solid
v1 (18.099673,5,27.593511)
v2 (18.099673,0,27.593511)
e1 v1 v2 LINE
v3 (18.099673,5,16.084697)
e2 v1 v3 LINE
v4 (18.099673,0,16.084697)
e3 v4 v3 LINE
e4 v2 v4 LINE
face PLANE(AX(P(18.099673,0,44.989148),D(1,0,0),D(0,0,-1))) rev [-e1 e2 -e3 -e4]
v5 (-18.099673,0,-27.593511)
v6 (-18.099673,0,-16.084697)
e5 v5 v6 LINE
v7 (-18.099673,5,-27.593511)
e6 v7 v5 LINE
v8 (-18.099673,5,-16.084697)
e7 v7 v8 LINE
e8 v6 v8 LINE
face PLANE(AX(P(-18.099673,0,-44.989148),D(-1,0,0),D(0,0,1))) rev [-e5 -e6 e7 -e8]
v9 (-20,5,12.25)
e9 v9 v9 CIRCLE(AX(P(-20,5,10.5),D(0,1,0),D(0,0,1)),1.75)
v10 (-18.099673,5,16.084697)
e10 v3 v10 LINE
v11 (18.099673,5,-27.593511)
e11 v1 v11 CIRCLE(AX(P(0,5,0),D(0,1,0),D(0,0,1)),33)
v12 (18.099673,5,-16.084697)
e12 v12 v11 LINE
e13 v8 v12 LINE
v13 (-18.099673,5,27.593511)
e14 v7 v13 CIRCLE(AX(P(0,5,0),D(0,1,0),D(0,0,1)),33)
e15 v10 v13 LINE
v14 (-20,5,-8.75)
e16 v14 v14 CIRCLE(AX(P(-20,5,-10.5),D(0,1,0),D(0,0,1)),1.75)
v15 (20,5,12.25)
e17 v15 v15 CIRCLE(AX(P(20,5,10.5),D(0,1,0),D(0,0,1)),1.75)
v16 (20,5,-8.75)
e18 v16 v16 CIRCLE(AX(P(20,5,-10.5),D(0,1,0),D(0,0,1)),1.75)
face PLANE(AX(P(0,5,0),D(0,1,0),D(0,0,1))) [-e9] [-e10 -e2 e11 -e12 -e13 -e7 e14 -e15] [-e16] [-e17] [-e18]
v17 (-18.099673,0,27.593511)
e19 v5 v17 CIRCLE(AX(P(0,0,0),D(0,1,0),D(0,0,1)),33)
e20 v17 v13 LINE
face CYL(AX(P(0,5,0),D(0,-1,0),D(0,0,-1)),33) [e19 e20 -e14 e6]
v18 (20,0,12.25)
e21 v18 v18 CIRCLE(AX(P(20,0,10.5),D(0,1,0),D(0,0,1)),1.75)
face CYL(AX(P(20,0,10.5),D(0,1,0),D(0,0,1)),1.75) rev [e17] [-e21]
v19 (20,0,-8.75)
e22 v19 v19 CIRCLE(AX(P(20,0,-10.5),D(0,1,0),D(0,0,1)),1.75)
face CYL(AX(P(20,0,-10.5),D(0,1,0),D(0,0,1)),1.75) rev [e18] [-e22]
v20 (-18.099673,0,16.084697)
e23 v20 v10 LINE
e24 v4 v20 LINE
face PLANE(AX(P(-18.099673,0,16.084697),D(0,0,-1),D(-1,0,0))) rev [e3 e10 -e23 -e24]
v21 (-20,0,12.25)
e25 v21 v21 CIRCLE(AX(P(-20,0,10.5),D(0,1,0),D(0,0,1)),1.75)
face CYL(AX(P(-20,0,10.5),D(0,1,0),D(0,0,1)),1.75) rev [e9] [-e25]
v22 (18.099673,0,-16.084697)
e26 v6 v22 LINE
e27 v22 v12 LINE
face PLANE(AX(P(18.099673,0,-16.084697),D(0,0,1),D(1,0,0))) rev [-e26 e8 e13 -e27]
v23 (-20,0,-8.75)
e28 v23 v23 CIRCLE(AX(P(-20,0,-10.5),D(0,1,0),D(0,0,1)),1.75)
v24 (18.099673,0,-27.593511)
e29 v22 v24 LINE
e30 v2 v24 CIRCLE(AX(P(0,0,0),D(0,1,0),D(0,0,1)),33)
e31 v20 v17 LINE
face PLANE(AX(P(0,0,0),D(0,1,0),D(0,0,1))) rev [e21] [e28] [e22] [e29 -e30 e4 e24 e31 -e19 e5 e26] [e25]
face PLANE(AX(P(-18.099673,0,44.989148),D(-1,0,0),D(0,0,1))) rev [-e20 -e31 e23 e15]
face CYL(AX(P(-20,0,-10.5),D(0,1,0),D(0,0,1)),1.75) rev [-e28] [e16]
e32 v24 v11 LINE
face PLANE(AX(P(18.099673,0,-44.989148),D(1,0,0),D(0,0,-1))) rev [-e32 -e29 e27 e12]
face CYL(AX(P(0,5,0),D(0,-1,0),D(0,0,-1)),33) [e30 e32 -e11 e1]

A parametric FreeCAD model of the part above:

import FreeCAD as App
import Part
import Sketcher
from FreeCAD import Vector

doc = App.newDocument("Part")
body = doc.addObject("PartDesign::Body", "Body")

# Sketch on XZ plane
sketch1 = body.newObject("Sketcher::SketchObject", "Sketch")
sketch1.AttachmentSupport = (doc.getObject("XZ_Plane"), [""])
sketch1.MapMode = "FlatFace"
sketch1.addGeometry(Part.Circle(Vector(0, 0, 0), Vector(0, 0, 1), 33), False)
sketch1.addConstraint([
    Sketcher.Constraint("Coincident", 0, 3, -1, 1),
    Sketcher.Constraint("Diameter", 0, 66.0),
])
pad1 = body.newObject("PartDesign::Pad", "Pad")
pad1.Profile = sketch1
pad1.Length = 5
pad1.Reversed = True

# Sketch on XZ plane
sketch2 = body.newObject("Sketcher::SketchObject", "Sketch001")
sketch2.AttachmentSupport = (doc.getObject("XZ_Plane"), [""])
sketch2.MapMode = "FlatFace"
sketch2.AttachmentOffset = App.Placement(Vector(0, 0, -5), App.Rotation())
sketch2.addGeometry([
    Part.LineSegment(Vector(-18, 16, 0), Vector(-18, 45, 0)),  # 0
    Part.LineSegment(Vector(-18, 45, 0), Vector(18, 45, 0)),  # 1
    Part.LineSegment(Vector(18, 45, 0), Vector(18, 16, 0)),  # 2
    Part.LineSegment(Vector(18, 16, 0), Vector(-18, 16, 0)),  # 3
    Part.LineSegment(Vector(-18, -45, 0), Vector(-18, -16, 0)),  # 4
    Part.LineSegment(Vector(-18, -16, 0), Vector(18, -16, 0)),  # 5
    Part.LineSegment(Vector(18, -16, 0), Vector(18, -45, 0)),  # 6
    Part.LineSegment(Vector(18, -45, 0), Vector(-18, -45, 0)),  # 7
], False)
sketch2.addConstraint([
    Sketcher.Constraint("Coincident", 0, 2, 1, 1),
    Sketcher.Constraint("Coincident", 1, 2, 2, 1),
    Sketcher.Constraint("Coincident", 2, 2, 3, 1),
    Sketcher.Constraint("Coincident", 3, 2, 0, 1),
    Sketcher.Constraint("Coincident", 4, 2, 5, 1),
    Sketcher.Constraint("Coincident", 5, 2, 6, 1),
    Sketcher.Constraint("Coincident", 6, 2, 7, 1),
    Sketcher.Constraint("Coincident", 7, 2, 4, 1),
    Sketcher.Constraint("Vertical", 0),
    Sketcher.Constraint("Horizontal", 1),
    Sketcher.Constraint("Vertical", 2),
    Sketcher.Constraint("Horizontal", 3),
    Sketcher.Constraint("Vertical", 4),
    Sketcher.Constraint("Horizontal", 5),
    Sketcher.Constraint("Vertical", 6),
    Sketcher.Constraint("Horizontal", 7),
    Sketcher.Constraint("Symmetric", 2, 2, 4, 2, -1, 1),
    Sketcher.Constraint("Symmetric", 0, 2, 6, 2, -1, 1),
    Sketcher.Constraint("Vertical", 3, 2, 4, 2),
    Sketcher.Constraint("DistanceY", 0, 1, 0, 2, 28.904451),
    Sketcher.Constraint("DistanceX", 1, 1, 1, 2, 36.199346),
    Sketcher.Constraint("DistanceY", -1, 1, 0, 2, 44.989148),
])
pocket1 = body.newObject("PartDesign::Pocket", "Pocket")
pocket1.Profile = sketch2
pocket1.Type = "ThroughAll"
pocket1.Reversed = True

# Sketch on XZ plane
sketch3 = body.newObject("Sketcher::SketchObject", "Sketch002")
sketch3.AttachmentSupport = (doc.getObject("XZ_Plane"), [""])
sketch3.MapMode = "FlatFace"
sketch3.AttachmentOffset = App.Placement(Vector(0, 0, -5), App.Rotation())
sketch3.addGeometry([
    Part.Circle(Vector(-20, -10.5, 0), Vector(0, 0, 1), 1.8),
    Part.Circle(Vector(20, -10.5, 0), Vector(0, 0, 1), 1.8),
    Part.Circle(Vector(-20, 10.5, 0), Vector(0, 0, 1), 1.8),
    Part.Circle(Vector(20, 10.5, 0), Vector(0, 0, 1), 1.8),
], False)
sketch3.addConstraint([
    Sketcher.Constraint("Equal", 0, 1),
    Sketcher.Constraint("Equal", 1, 2),
    Sketcher.Constraint("Equal", 2, 3),
    Sketcher.Constraint("Symmetric", 1, 3, 2, 3, -1, 1),
    Sketcher.Constraint("Symmetric", 0, 3, 3, 3, -1, 1),
    Sketcher.Constraint("Symmetric", 0, 3, 1, 3, -2),
    Sketcher.Constraint("Diameter", 0, 3.5),
    Sketcher.Constraint("DistanceX", 0, 3, -1, 1, 20.0),
    Sketcher.Constraint("DistanceY", 0, 3, 2, 3, 21.0),
])
pocket2 = body.newObject("PartDesign::Pocket", "Pocket001")
pocket2.Profile = sketch3
pocket2.Type = "ThroughAll"
pocket2.Reversed = True

doc.recompute()
